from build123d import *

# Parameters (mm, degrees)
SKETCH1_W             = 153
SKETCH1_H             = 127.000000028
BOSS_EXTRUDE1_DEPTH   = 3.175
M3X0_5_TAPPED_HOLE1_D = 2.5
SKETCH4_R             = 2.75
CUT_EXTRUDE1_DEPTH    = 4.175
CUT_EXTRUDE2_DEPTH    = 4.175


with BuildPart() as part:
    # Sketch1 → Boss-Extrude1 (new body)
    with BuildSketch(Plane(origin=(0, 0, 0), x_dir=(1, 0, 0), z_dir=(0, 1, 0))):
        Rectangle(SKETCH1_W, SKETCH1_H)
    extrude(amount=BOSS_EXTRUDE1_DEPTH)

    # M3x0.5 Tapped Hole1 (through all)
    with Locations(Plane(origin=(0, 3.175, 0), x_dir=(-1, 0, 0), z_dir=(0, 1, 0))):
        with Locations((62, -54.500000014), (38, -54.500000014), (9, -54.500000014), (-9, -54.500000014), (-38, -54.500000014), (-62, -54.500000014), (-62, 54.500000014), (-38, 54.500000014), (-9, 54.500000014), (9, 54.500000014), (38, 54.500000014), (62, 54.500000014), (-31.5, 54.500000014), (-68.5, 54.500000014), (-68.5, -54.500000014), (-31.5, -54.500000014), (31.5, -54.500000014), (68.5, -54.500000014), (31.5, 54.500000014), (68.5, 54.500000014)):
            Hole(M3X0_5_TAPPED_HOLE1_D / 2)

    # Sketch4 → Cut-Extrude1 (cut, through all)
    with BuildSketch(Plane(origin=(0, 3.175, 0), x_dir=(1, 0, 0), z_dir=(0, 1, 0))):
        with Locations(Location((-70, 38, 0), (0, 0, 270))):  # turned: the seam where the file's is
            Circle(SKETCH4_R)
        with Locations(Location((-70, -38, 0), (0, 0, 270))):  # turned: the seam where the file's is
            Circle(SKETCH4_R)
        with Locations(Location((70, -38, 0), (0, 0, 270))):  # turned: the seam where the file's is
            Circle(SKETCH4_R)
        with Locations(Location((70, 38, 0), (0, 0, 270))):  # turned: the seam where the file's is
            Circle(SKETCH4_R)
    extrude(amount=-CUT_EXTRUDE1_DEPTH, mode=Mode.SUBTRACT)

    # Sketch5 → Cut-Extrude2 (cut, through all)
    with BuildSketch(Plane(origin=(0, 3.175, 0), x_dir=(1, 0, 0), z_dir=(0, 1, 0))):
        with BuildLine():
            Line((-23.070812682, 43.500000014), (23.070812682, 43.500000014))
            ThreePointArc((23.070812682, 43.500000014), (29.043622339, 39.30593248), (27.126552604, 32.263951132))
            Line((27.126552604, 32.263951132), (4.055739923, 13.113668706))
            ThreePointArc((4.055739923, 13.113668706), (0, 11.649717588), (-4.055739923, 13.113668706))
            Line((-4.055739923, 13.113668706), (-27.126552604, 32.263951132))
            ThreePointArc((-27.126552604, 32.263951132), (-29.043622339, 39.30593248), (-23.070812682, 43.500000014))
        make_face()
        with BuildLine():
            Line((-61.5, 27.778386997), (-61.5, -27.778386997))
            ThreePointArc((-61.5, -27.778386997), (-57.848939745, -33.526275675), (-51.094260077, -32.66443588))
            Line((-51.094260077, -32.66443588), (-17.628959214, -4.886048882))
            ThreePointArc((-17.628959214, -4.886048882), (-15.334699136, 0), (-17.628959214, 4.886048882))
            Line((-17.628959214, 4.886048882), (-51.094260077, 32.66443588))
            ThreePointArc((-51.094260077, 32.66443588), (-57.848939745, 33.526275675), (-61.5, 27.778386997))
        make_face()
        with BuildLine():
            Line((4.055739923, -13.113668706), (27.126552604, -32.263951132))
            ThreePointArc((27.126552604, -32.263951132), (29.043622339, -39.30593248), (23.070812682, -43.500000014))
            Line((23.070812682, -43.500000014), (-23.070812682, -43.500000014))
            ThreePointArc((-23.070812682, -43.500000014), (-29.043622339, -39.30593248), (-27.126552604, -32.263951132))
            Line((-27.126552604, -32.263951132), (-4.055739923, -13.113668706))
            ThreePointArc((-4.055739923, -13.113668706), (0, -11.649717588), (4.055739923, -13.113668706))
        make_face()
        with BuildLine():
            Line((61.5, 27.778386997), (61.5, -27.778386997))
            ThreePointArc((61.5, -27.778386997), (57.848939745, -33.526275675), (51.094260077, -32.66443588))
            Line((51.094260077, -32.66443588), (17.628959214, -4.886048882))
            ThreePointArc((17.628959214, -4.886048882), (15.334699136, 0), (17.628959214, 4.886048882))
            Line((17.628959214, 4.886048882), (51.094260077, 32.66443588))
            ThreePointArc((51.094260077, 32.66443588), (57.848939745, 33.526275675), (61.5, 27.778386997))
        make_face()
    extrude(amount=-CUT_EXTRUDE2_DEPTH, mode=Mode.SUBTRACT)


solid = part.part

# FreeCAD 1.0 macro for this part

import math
import FreeCAD as App
import Part
import Sketcher
from FreeCAD import Vector

doc = App.newDocument("Part")
params = doc.addObject("Spreadsheet::Sheet", "Params")
for row, (alias, value) in enumerate([
    ("sketch1_width", "153 mm"),
    ("sketch1_height", "127 mm"),
    ("pad1_length", "3.175 mm"),
    ("sketch2_diameter", "2.5 mm"),
    ("hole_diameter", "2.5 mm"),
    ("sketch3_diameter", "5.5 mm"),
    ("sketch4_radius", "6.35 mm"),
], start=1):
    params.set(f"A{row}", alias)
    params.set(f"B{row}", "=" + value)
    params.setAlias(f"B{row}", alias)

body = doc.addObject("PartDesign::Body", "Body")

# Sketch on XZ plane
sketch1 = body.newObject("Sketcher::SketchObject", "Sketch")
sketch1.AttachmentSupport = (doc.getObject("XZ_Plane"), [""])
sketch1.MapMode = "FlatFace"
sketch1.addGeometry([
    Part.LineSegment(Vector(-76, -64, 0), Vector(-76, 64, 0)),
    Part.LineSegment(Vector(-76, 64, 0), Vector(76, 64, 0)),
    Part.LineSegment(Vector(76, 64, 0), Vector(76, -64, 0)),
    Part.LineSegment(Vector(76, -64, 0), Vector(-76, -64, 0)),
], False)
sketch1.addConstraint([
    Sketcher.Constraint("Coincident", 0, 2, 1, 1),
    Sketcher.Constraint("Coincident", 1, 2, 2, 1),
    Sketcher.Constraint("Coincident", 2, 2, 3, 1),
    Sketcher.Constraint("Coincident", 3, 2, 0, 1),
    Sketcher.Constraint("Vertical", 0),
    Sketcher.Constraint("Horizontal", 1),
    Sketcher.Constraint("Vertical", 2),
    Sketcher.Constraint("Horizontal", 3),
    Sketcher.Constraint("Symmetric", 0, 2, 2, 2, -1, 1),
    Sketcher.Constraint("DistanceX", 1, 1, 1, 2, 153.0),
    Sketcher.Constraint("DistanceY", 0, 1, 0, 2, 127.0),
])
sketch1.setExpression("Constraints[9]", "Params.sketch1_width")
sketch1.setExpression("Constraints[10]", "Params.sketch1_height")
pad1 = body.newObject("PartDesign::Pad", "Pad")
pad1.Profile = sketch1
pad1.setExpression("Length", "Params.pad1_length")
pad1.Reversed = True

# Sketch on XZ plane
sketch2 = body.newObject("Sketcher::SketchObject", "Sketch001")
sketch2.AttachmentSupport = (doc.getObject("XZ_Plane"), [""])
sketch2.MapMode = "FlatFace"
sketch2.AttachmentOffset = App.Placement(Vector(0, 0, -3.175), App.Rotation())
sketch2.addGeometry([
    Part.Circle(Vector(-62, -54.5, 0), Vector(0, 0, 1), 1.2),  # 0
    Part.Circle(Vector(-38, -54.5, 0), Vector(0, 0, 1), 1.2),  # 1
    Part.Circle(Vector(-9, -54.5, 0), Vector(0, 0, 1), 1.2),  # 2
    Part.Circle(Vector(9, -54.5, 0), Vector(0, 0, 1), 1.2),  # 3
    Part.Circle(Vector(38, -54.5, 0), Vector(0, 0, 1), 1.2),  # 4
    Part.Circle(Vector(62, -54.5, 0), Vector(0, 0, 1), 1.2),  # 5
    Part.Circle(Vector(62, 54.5, 0), Vector(0, 0, 1), 1.2),  # 6
    Part.Circle(Vector(38, 54.5, 0), Vector(0, 0, 1), 1.2),  # 7
    Part.Circle(Vector(9, 54.5, 0), Vector(0, 0, 1), 1.2),  # 8
    Part.Circle(Vector(-9, 54.5, 0), Vector(0, 0, 1), 1.2),  # 9
    Part.Circle(Vector(-38, 54.5, 0), Vector(0, 0, 1), 1.2),  # 10
    Part.Circle(Vector(-62, 54.5, 0), Vector(0, 0, 1), 1.2),  # 11
    Part.Circle(Vector(31.5, 54.5, 0), Vector(0, 0, 1), 1.2),  # 12
    Part.Circle(Vector(68.5, 54.5, 0), Vector(0, 0, 1), 1.2),  # 13
    Part.Circle(Vector(68.5, -54.5, 0), Vector(0, 0, 1), 1.2),  # 14
    Part.Circle(Vector(31.5, -54.5, 0), Vector(0, 0, 1), 1.2),  # 15
    Part.Circle(Vector(-31.5, -54.5, 0), Vector(0, 0, 1), 1.2),  # 16
    Part.Circle(Vector(-68.5, -54.5, 0), Vector(0, 0, 1), 1.2),  # 17
    Part.Circle(Vector(-31.5, 54.5, 0), Vector(0, 0, 1), 1.2),  # 18
    Part.Circle(Vector(-68.5, 54.5, 0), Vector(0, 0, 1), 1.2),  # 19
], False)
sketch2.addConstraint([
    Sketcher.Constraint("Equal", 0, 1),
    Sketcher.Constraint("Equal", 1, 2),
    Sketcher.Constraint("Equal", 2, 3),
    Sketcher.Constraint("Equal", 3, 4),
    Sketcher.Constraint("Equal", 4, 5),
    Sketcher.Constraint("Equal", 5, 6),
    Sketcher.Constraint("Equal", 6, 7),
    Sketcher.Constraint("Equal", 7, 8),
    Sketcher.Constraint("Equal", 8, 9),
    Sketcher.Constraint("Equal", 9, 10),
    Sketcher.Constraint("Equal", 10, 11),
    Sketcher.Constraint("Equal", 11, 12),
    Sketcher.Constraint("Equal", 12, 13),
    Sketcher.Constraint("Equal", 13, 14),
    Sketcher.Constraint("Equal", 14, 15),
    Sketcher.Constraint("Equal", 15, 16),
    Sketcher.Constraint("Equal", 16, 17),
    Sketcher.Constraint("Equal", 17, 18),
    Sketcher.Constraint("Equal", 18, 19),
    Sketcher.Constraint("Symmetric", 0, 3, 6, 3, -1, 1),
    Sketcher.Constraint("Symmetric", 1, 3, 7, 3, -1, 1),
    Sketcher.Constraint("Symmetric", 2, 3, 8, 3, -1, 1),
    Sketcher.Constraint("Symmetric", 3, 3, 9, 3, -1, 1),
    Sketcher.Constraint("Symmetric", 4, 3, 10, 3, -1, 1),
    Sketcher.Constraint("Symmetric", 5, 3, 11, 3, -1, 1),
    Sketcher.Constraint("Symmetric", 12, 3, 16, 3, -1, 1),
    Sketcher.Constraint("Symmetric", 13, 3, 17, 3, -1, 1),
    Sketcher.Constraint("Symmetric", 15, 3, 18, 3, -1, 1),
    Sketcher.Constraint("Symmetric", 14, 3, 19, 3, -1, 1),
    Sketcher.Constraint("Symmetric", 2, 3, 3, 3, -2),
    Sketcher.Constraint("Symmetric", 1, 3, 4, 3, -2),
    Sketcher.Constraint("Symmetric", 0, 3, 5, 3, -2),
    Sketcher.Constraint("Symmetric", 15, 3, 16, 3, -2),
    Sketcher.Constraint("Symmetric", 14, 3, 17, 3, -2),
    Sketcher.Constraint("Horizontal", 0, 3, 1, 3),
    Sketcher.Constraint("Horizontal", 1, 3, 2, 3),
    Sketcher.Constraint("Horizontal", 11, 3, 12, 3),
    Sketcher.Constraint("Horizontal", 12, 3, 13, 3),
    Sketcher.Constraint("Diameter", 0, 2.5),
    Sketcher.Constraint("DistanceX", 0, 3, -1, 1, 62.0),
    Sketcher.Constraint("DistanceX", 1, 3, -1, 1, 38.0),
    Sketcher.Constraint("DistanceX", 2, 3, -1, 1, 9.0),
    Sketcher.Constraint("DistanceY", 5, 3, 6, 3, 109.0),
    Sketcher.Constraint("DistanceX", 12, 3, 13, 3, 37.0),
    Sketcher.Constraint("DistanceX", 16, 3, 15, 3, 63.0),
])
sketch2.setExpression("Constraints[38]", "Params.sketch2_diameter")
doc.recompute()
hole = body.newObject("PartDesign::Hole", "Hole")
hole.Profile = sketch2
hole.ThreadType = "None"
hole.setExpression("Diameter", "Params.hole_diameter")
hole.DepthType = "ThroughAll"
hole.Reversed = True

# Sketch on XZ plane
sketch3 = body.newObject("Sketcher::SketchObject", "Sketch002")
sketch3.AttachmentSupport = (doc.getObject("XZ_Plane"), [""])
sketch3.MapMode = "FlatFace"
sketch3.AttachmentOffset = App.Placement(Vector(0, 0, -3.175), App.Rotation())
sketch3.addGeometry([
    Part.Circle(Vector(-70, -38, 0), Vector(0, 0, 1), 2.8),
    Part.Circle(Vector(-70, 38, 0), Vector(0, 0, 1), 2.8),
    Part.Circle(Vector(70, 38, 0), Vector(0, 0, 1), 2.8),
    Part.Circle(Vector(70, -38, 0), Vector(0, 0, 1), 2.8),
], False)
sketch3.addConstraint([
    Sketcher.Constraint("Equal", 0, 1),
    Sketcher.Constraint("Equal", 1, 2),
    Sketcher.Constraint("Equal", 2, 3),
    Sketcher.Constraint("Symmetric", 0, 3, 2, 3, -1, 1),
    Sketcher.Constraint("Symmetric", 1, 3, 3, 3, -1, 1),
    Sketcher.Constraint("Symmetric", 1, 3, 2, 3, -2),
    Sketcher.Constraint("Diameter", 0, 5.5),
    Sketcher.Constraint("DistanceX", 0, 3, -1, 1, 70.0),
    Sketcher.Constraint("DistanceY", 0, 3, -1, 1, 38.0),
])
sketch3.setExpression("Constraints[6]", "Params.sketch3_diameter")
pocket1 = body.newObject("PartDesign::Pocket", "Pocket")
pocket1.Profile = sketch3
pocket1.Type = "ThroughAll"
pocket1.Reversed = True

# Sketch on XZ plane
sketch4 = body.newObject("Sketcher::SketchObject", "Sketch003")
sketch4.AttachmentSupport = (doc.getObject("XZ_Plane"), [""])
sketch4.MapMode = "FlatFace"
sketch4.AttachmentOffset = App.Placement(Vector(0, 0, -3.175), App.Rotation())
sketch4.addGeometry([
    Part.LineSegment(Vector(23, -44, 0), Vector(-23, -44, 0)),  # 0
    Part.ArcOfCircle(Part.Circle(Vector(-23, -37, 0), Vector(0, 0, 1), 6), math.radians(130), math.radians(270)),  # 1
    Part.LineSegment(Vector(-27, -32, 0), Vector(-4, -13, 0)),  # 2
    Part.ArcOfCircle(Part.Circle(Vector(0, -18, 0), Vector(0, 0, 1), 6), math.radians(50), math.radians(130)),  # 3
    Part.LineSegment(Vector(4, -13, 0), Vector(27, -32, 0)),  # 4
    Part.ArcOfCircle(Part.Circle(Vector(23, -37, 0), Vector(0, 0, 1), 6), math.radians(-90), math.radians(50)),  # 5
    Part.LineSegment(Vector(-62, -28, 0), Vector(-62, 28, 0)),  # 6
    Part.ArcOfCircle(Part.Circle(Vector(-55, 28, 0), Vector(0, 0, 1), 6), math.radians(50), math.radians(180)),  # 7
    Part.LineSegment(Vector(-51, 33, 0), Vector(-18, 5, 0)),  # 8
    Part.ArcOfCircle(Part.Circle(Vector(-22, 0, 0), Vector(0, 0, 1), 6), math.radians(-50), math.radians(50)),  # 9
    Part.LineSegment(Vector(-18, -5, 0), Vector(-51, -33, 0)),  # 10
    Part.ArcOfCircle(Part.Circle(Vector(-55, -28, 0), Vector(0, 0, 1), 6), math.radians(180), math.radians(310)),  # 11
    Part.LineSegment(Vector(27, 32, 0), Vector(4, 13, 0)),  # 12
    Part.ArcOfCircle(Part.Circle(Vector(0, 18, 0), Vector(0, 0, 1), 6), math.radians(-130), math.radians(-50)),  # 13
    Part.LineSegment(Vector(-4, 13, 0), Vector(-27, 32, 0)),  # 14
    Part.ArcOfCircle(Part.Circle(Vector(-23, 37, 0), Vector(0, 0, 1), 6), math.radians(90), math.radians(230)),  # 15
    Part.LineSegment(Vector(-23, 44, 0), Vector(23, 44, 0)),  # 16
    Part.ArcOfCircle(Part.Circle(Vector(23, 37, 0), Vector(0, 0, 1), 6), math.radians(-50), math.radians(90)),  # 17
    Part.LineSegment(Vector(62, 28, 0), Vector(62, -28, 0)),  # 18
    Part.ArcOfCircle(Part.Circle(Vector(55, -28, 0), Vector(0, 0, 1), 6), math.radians(-130), math.radians(0)),  # 19
    Part.LineSegment(Vector(51, -33, 0), Vector(18, -5, 0)),  # 20
    Part.ArcOfCircle(Part.Circle(Vector(22, 0, 0), Vector(0, 0, 1), 6), math.radians(130), math.radians(230)),  # 21
    Part.LineSegment(Vector(18, 5, 0), Vector(51, 33, 0)),  # 22
    Part.ArcOfCircle(Part.Circle(Vector(55, 28, 0), Vector(0, 0, 1), 6), math.radians(0), math.radians(130)),  # 23
], False)
sketch4.addConstraint([
    Sketcher.Constraint("Tangent", 0, 2, 1, 2),
    Sketcher.Constraint("Tangent", 1, 1, 2, 1),
    Sketcher.Constraint("Tangent", 2, 2, 3, 2),
    Sketcher.Constraint("Tangent", 3, 1, 4, 1),
    Sketcher.Constraint("Tangent", 4, 2, 5, 2),
    Sketcher.Constraint("Tangent", 5, 1, 0, 1),
    Sketcher.Constraint("Tangent", 6, 2, 7, 2),
    Sketcher.Constraint("Tangent", 7, 1, 8, 1),
    Sketcher.Constraint("Tangent", 8, 2, 9, 2),
    Sketcher.Constraint("Tangent", 9, 1, 10, 1),
    Sketcher.Constraint("Tangent", 10, 2, 11, 2),
    Sketcher.Constraint("Tangent", 11, 1, 6, 1),
    Sketcher.Constraint("Tangent", 12, 2, 13, 2),
    Sketcher.Constraint("Tangent", 13, 1, 14, 1),
    Sketcher.Constraint("Tangent", 14, 2, 15, 2),
    Sketcher.Constraint("Tangent", 15, 1, 16, 1),
    Sketcher.Constraint("Tangent", 16, 2, 17, 2),
    Sketcher.Constraint("Tangent", 17, 1, 12, 1),
    Sketcher.Constraint("Tangent", 18, 2, 19, 2),
    Sketcher.Constraint("Tangent", 19, 1, 20, 1),
    Sketcher.Constraint("Tangent", 20, 2, 21, 2),
    Sketcher.Constraint("Tangent", 21, 1, 22, 1),
    Sketcher.Constraint("Tangent", 22, 2, 23, 2),
    Sketcher.Constraint("Tangent", 23, 1, 18, 1),
    Sketcher.Constraint("Horizontal", 0),
    Sketcher.Constraint("Vertical", 6),
    Sketcher.Constraint("Horizontal", 16),
    Sketcher.Constraint("Vertical", 18),
    Sketcher.Constraint("Equal", 1, 3),
    Sketcher.Constraint("Equal", 3, 5),
    Sketcher.Constraint("Equal", 5, 7),
    Sketcher.Constraint("Equal", 7, 9),
    Sketcher.Constraint("Equal", 9, 11),
    Sketcher.Constraint("Equal", 11, 13),
    Sketcher.Constraint("Equal", 13, 15),
    Sketcher.Constraint("Equal", 15, 17),
    Sketcher.Constraint("Equal", 17, 19),
    Sketcher.Constraint("Equal", 19, 21),
    Sketcher.Constraint("Equal", 21, 23),
    Sketcher.Constraint("Symmetric", 3, 3, 13, 3, -1, 1),
    Sketcher.Constraint("Symmetric", 5, 3, 15, 3, -1, 1),
    Sketcher.Constraint("Symmetric", 7, 3, 19, 3, -1, 1),
    Sketcher.Constraint("Symmetric", 9, 3, 21, 3, -1, 1),
    Sketcher.Constraint("Symmetric", 2, 2, 3, 1, -2),
    Sketcher.Constraint("Symmetric", 10, 2, 19, 1, -2),
    Sketcher.Constraint("Parallel", 4, 8),
    Sketcher.Constraint("Parallel", 10, 12),
    Sketcher.Constraint("Parallel", 12, 22),
    Sketcher.Constraint("Radius", 1, 6.35),
    Sketcher.Constraint("DistanceY", 0, 2, -1, 1, 43.5),
    Sketcher.Constraint("DistanceX", 6, 2, -1, 1, 61.5),
    Sketcher.Constraint("DistanceX", 9, 3, -1, 1, 21.684699),
    Sketcher.Constraint("DistanceX", 0, 2, 0, 1, 46.141625),
    Sketcher.Constraint("DistanceY", 6, 1, 6, 2, 55.556774),
])
sketch4.setExpression("Constraints[48]", "Params.sketch4_radius")
pocket2 = body.newObject("PartDesign::Pocket", "Pocket001")
pocket2.Profile = sketch4
pocket2.Type = "ThroughAll"
pocket2.Reversed = True

doc.recompute()
